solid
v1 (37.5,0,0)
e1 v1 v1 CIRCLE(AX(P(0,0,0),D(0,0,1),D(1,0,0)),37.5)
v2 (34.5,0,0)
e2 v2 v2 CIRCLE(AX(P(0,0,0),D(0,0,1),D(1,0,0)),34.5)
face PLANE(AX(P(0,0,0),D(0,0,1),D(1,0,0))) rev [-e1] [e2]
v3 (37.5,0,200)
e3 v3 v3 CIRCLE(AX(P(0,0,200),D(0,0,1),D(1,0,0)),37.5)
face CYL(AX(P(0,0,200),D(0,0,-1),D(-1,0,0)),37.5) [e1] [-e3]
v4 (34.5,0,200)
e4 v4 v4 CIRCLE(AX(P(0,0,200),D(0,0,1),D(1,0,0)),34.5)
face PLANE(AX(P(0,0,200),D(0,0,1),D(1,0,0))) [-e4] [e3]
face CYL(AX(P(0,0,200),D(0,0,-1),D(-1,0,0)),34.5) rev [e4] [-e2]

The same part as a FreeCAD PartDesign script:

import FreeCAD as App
import Part
import Sketcher

V = App.Vector
Q = App.Units.Quantity

doc = App.newDocument("Part")
body = doc.addObject("PartDesign::Body", "Body")

# Sketch on XY plane
sketch1 = body.newObject("Sketcher::SketchObject", "Sketch")
sketch1.AttachmentSupport = (doc.getObject("XY_Plane"), [""])
sketch1.MapMode = "FlatFace"
sketch1.addGeometry([
    Part.Circle(V(0, 0, 0), V(0, 0, 1), 38),
    Part.Circle(V(0, 0, 0), V(0, 0, 1), 34),
], False)
sketch1.addConstraint([
    Sketcher.Constraint("Coincident", 0, 3, -1, 1),
    Sketcher.Constraint("Coincident", 1, 3, -1, 1),
    Sketcher.Constraint("Diameter", 0, Q("75 mm")),
    Sketcher.Constraint("Diameter", 1, Q("69 mm")),
])
pad1 = body.newObject("PartDesign::Pad", "Pad")
pad1.Profile = sketch1
pad1.Length = 200

doc.recompute()
